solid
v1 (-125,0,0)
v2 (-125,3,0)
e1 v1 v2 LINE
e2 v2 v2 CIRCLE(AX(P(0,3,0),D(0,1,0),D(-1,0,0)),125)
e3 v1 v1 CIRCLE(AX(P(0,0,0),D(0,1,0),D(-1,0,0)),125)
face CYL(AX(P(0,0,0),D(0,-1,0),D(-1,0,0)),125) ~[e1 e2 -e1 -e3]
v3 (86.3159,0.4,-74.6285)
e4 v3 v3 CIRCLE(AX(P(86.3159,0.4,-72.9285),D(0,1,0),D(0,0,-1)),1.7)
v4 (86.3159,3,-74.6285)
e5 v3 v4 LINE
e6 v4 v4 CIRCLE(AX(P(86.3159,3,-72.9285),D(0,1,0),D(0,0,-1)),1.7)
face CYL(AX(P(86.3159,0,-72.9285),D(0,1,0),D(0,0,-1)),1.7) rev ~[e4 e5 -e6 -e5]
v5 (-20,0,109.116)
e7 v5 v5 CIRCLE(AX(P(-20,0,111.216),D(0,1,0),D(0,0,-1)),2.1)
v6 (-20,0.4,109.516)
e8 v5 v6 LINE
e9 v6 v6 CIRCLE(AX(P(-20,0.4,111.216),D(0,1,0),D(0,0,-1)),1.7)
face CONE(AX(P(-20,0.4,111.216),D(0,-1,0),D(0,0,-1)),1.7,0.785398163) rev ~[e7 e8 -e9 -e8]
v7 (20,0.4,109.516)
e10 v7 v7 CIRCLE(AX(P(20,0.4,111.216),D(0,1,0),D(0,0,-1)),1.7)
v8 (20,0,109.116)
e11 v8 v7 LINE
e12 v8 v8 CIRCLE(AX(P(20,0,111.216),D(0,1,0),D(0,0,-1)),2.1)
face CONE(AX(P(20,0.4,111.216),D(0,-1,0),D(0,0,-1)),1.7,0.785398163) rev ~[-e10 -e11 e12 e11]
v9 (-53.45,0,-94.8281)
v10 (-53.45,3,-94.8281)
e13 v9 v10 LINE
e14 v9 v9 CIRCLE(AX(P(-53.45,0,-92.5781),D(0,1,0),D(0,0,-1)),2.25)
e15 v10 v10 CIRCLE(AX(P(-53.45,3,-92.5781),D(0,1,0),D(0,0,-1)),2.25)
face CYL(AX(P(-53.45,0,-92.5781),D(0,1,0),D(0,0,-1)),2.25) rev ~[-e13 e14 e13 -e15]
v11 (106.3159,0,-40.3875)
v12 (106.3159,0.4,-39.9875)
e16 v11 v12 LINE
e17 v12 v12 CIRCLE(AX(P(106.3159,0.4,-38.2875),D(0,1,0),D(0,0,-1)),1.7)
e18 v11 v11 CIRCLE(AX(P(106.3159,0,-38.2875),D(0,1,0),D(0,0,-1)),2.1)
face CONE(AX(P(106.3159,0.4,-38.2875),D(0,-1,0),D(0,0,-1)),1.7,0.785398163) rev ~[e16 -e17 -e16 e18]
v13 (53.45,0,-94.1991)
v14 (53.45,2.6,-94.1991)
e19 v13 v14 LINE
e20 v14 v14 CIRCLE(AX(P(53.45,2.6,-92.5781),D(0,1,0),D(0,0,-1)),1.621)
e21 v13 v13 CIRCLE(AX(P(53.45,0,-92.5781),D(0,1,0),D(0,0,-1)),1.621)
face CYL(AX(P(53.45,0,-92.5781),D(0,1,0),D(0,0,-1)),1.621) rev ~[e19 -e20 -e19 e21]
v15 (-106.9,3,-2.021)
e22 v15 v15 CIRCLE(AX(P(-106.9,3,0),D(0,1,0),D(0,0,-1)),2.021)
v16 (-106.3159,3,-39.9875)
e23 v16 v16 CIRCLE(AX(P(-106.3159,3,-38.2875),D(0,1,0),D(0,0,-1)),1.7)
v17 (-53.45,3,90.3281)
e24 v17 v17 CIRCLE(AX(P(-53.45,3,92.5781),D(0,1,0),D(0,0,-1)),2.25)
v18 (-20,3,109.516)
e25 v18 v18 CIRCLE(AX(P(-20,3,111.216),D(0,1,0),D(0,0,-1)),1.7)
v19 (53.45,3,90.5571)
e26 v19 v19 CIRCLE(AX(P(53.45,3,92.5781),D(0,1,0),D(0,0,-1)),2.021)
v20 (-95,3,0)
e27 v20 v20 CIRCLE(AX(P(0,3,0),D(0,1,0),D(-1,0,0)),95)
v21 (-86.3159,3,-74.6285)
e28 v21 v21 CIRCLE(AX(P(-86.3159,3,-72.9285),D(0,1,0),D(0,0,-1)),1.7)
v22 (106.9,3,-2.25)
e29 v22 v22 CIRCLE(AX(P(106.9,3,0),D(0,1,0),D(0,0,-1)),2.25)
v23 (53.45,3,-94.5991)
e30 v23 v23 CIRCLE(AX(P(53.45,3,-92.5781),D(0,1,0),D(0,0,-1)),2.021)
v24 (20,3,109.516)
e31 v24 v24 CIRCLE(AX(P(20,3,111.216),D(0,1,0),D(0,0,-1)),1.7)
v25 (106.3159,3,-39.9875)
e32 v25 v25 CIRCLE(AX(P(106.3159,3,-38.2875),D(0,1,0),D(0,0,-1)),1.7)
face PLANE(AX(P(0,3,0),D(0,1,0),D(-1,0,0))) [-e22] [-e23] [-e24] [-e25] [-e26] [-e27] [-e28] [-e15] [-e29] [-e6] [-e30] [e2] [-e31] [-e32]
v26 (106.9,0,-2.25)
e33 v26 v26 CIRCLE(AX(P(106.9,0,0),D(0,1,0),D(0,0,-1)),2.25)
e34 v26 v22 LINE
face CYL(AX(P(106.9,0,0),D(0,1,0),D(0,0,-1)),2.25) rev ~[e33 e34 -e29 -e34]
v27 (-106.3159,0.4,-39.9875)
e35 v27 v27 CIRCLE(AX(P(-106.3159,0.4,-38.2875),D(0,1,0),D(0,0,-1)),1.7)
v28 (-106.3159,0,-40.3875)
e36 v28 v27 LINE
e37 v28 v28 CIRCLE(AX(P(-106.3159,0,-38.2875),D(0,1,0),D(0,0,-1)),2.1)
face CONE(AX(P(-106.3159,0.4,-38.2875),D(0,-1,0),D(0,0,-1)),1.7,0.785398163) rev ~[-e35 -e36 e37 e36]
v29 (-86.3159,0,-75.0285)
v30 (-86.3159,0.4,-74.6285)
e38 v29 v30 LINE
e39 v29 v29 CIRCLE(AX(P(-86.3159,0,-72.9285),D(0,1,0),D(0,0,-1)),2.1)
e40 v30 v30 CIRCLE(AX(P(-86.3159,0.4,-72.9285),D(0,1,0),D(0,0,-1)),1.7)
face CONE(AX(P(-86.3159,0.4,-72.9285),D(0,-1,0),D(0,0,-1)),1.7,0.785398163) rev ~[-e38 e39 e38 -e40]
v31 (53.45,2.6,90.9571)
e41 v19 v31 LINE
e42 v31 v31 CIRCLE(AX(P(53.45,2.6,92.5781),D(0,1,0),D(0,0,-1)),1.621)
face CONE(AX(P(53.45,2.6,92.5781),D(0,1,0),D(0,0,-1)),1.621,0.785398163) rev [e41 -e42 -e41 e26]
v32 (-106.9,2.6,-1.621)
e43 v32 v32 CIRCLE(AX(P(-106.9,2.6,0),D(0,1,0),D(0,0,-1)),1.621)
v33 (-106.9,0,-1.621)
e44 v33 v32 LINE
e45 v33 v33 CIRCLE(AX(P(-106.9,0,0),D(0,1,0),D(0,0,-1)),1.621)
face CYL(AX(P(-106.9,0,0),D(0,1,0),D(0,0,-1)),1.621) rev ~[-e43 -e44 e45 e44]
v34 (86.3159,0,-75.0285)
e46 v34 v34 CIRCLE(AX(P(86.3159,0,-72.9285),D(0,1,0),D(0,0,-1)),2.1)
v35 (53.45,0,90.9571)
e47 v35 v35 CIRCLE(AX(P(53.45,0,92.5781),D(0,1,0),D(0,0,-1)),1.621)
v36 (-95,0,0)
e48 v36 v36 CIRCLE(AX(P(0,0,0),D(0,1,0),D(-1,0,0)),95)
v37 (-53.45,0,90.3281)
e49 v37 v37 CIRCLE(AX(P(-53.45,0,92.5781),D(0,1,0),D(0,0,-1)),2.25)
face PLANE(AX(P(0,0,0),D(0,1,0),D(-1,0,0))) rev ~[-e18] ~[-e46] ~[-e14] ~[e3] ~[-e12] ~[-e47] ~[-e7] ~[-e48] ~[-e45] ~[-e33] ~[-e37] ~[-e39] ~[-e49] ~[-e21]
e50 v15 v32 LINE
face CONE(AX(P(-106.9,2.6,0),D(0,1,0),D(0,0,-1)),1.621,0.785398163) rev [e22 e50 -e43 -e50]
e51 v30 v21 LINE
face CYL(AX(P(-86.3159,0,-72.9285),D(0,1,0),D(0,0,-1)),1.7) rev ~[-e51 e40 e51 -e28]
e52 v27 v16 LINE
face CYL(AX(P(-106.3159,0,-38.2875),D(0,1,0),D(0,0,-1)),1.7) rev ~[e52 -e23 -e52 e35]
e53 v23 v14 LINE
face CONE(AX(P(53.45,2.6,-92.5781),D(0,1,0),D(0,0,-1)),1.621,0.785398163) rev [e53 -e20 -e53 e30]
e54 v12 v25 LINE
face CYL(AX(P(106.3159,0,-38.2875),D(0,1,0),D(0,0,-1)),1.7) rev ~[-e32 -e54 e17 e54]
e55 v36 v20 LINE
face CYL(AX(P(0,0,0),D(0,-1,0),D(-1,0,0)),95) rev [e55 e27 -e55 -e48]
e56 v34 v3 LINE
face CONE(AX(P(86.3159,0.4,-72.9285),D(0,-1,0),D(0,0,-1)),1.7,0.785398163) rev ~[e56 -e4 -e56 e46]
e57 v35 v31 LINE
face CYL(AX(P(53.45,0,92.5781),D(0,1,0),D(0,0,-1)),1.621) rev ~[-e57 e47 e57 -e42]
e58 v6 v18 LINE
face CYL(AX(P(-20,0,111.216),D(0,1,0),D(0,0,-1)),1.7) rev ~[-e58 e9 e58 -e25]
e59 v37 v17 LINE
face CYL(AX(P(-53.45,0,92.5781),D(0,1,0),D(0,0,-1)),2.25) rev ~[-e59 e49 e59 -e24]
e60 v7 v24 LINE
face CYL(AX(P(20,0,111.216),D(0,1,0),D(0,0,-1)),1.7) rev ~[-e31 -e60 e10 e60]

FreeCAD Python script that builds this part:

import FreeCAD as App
import Part
import Sketcher
from FreeCAD import Vector
Q = App.Units.Quantity


def edges_at(feature, points):
    """Names of the edges that pass closest to the given points."""
    edges = feature.Shape.Edges
    near = lambda p: min(range(len(edges)), key=lambda i: edges[i].distToShape(Part.Vertex(*p))[0])
    return sorted({f"Edge{near(p) + 1}" for p in points})

doc = App.newDocument("Part")
body = doc.addObject("PartDesign::Body", "Body")

sketch1 = doc.addObject("Sketcher::SketchObject", "Sketch")
body.addObject(sketch1)
sketch1.AttachmentSupport = (doc.XZ_Plane, [""])
sketch1.MapMode = "FlatFace"
sketch1.addGeometry([
    Part.Circle(Vector(0, 0, 0), Vector(0, 0, 1), 125),
    Part.Circle(Vector(0, 0, 0), Vector(0, 0, 1), 95),
], False)
sketch1.addConstraint([
    Sketcher.Constraint("Coincident", 0, 3, -1, 1),
    Sketcher.Constraint("Coincident", 1, 3, -1, 1),
    Sketcher.Constraint("Diameter", 1, Q("190 mm")),
    Sketcher.Constraint("Diameter", 0, Q("250 mm")),
])
pad1 = doc.addObject("PartDesign::Pad", "Pad")
body.addObject(pad1)
pad1.Profile = sketch1
pad1.Length = 3
pad1.Reversed = True

sketch2 = doc.addObject("Sketcher::SketchObject", "Sketch001")
body.addObject(sketch2)
sketch2.AttachmentSupport = (doc.XZ_Plane, [""])
sketch2.MapMode = "FlatFace"
sketch2.addGeometry([
    Part.Circle(Vector(106.9, 0, 0), Vector(0, 0, 1), 2.2),
    Part.Circle(Vector(-53.5, 92.6, 0), Vector(0, 0, 1), 2.2),
    Part.Circle(Vector(-53.5, -92.6, 0), Vector(0, 0, 1), 2.2),
], False)
sketch2.addConstraint([
    Sketcher.Constraint("Equal", 0, 1),
    Sketcher.Constraint("Equal", 1, 2),
    Sketcher.Constraint("Symmetric", 1, 3, 2, 3, -1),
    Sketcher.Constraint("PointOnObject", 0, 3, -1),
    Sketcher.Constraint("Diameter", 0, Q("4.5 mm")),
    Sketcher.Constraint("DistanceX", -1, 1, 0, 3, Q("106.9 mm")),
    Sketcher.Constraint("DistanceX", 1, 3, -1, 1, Q("53.45 mm")),
    Sketcher.Constraint("DistanceY", -1, 1, 1, 3, Q("92.578 mm")),
])
doc.recompute()
hole = doc.addObject("PartDesign::Hole", "Hole")
body.addObject(hole)
hole.Profile = sketch2
hole.ThreadType = "None"
hole.Diameter = 4.5
hole.DepthType = "ThroughAll"

sketch3 = doc.addObject("Sketcher::SketchObject", "Sketch002")
body.addObject(sketch3)
sketch3.AttachmentSupport = (doc.XZ_Plane, [""])
sketch3.MapMode = "FlatFace"
sketch3.addGeometry([
    Part.Circle(Vector(53.5, -92.6, 0), Vector(0, 0, 1), 1.6),
    Part.Circle(Vector(53.5, 92.6, 0), Vector(0, 0, 1), 1.6),
    Part.Circle(Vector(-106.9, 0, 0), Vector(0, 0, 1), 1.6),
], False)
sketch3.addConstraint([
    Sketcher.Constraint("Equal", 0, 1),
    Sketcher.Constraint("Equal", 1, 2),
    Sketcher.Constraint("Symmetric", 0, 3, 1, 3, -1),
    Sketcher.Constraint("PointOnObject", 2, 3, -1),
    Sketcher.Constraint("Diameter", 0, Q("3.242 mm")),
    Sketcher.Constraint("DistanceX", 2, 3, -1, 1, Q("106.9 mm")),
    Sketcher.Constraint("DistanceX", -1, 1, 0, 3, Q("53.45 mm")),
    Sketcher.Constraint("DistanceY", 0, 3, -1, 1, Q("92.578 mm")),
])
doc.recompute()
hole2 = doc.addObject("PartDesign::Hole", "Hole001")
body.addObject(hole2)
hole2.Profile = sketch3
hole2.ThreadType = "None"
hole2.Diameter = 3.242
hole2.DepthType = "ThroughAll"

sketch4 = doc.addObject("Sketcher::SketchObject", "Sketch003")
body.addObject(sketch4)
sketch4.AttachmentSupport = (doc.XZ_Plane, [""])
sketch4.MapMode = "FlatFace"
sketch4.addGeometry([
    Part.Circle(Vector(20, 111.2, 0), Vector(0, 0, 1), 1.7),
    Part.Circle(Vector(-20, 111.2, 0), Vector(0, 0, 1), 1.7),
    Part.Circle(Vector(-106.3, -38.3, 0), Vector(0, 0, 1), 1.7),
    Part.Circle(Vector(-86.3, -72.9, 0), Vector(0, 0, 1), 1.7),
    Part.Circle(Vector(86.3, -72.9, 0), Vector(0, 0, 1), 1.7),
    Part.Circle(Vector(106.3, -38.3, 0), Vector(0, 0, 1), 1.7),
], False)
sketch4.addConstraint([
    Sketcher.Constraint("Equal", 0, 1),
    Sketcher.Constraint("Equal", 1, 2),
    Sketcher.Constraint("Equal", 2, 3),
    Sketcher.Constraint("Equal", 3, 4),
    Sketcher.Constraint("Equal", 4, 5),
    Sketcher.Constraint("Symmetric", 0, 3, 1, 3, -2),
    Sketcher.Constraint("Symmetric", 3, 3, 4, 3, -2),
    Sketcher.Constraint("Symmetric", 2, 3, 5, 3, -2),
    Sketcher.Constraint("Diameter", 0, Q("3.4 mm")),
    Sketcher.Constraint("DistanceX", -1, 1, 0, 3, Q("20 mm")),
    Sketcher.Constraint("DistanceX", 2, 3, 3, 3, Q("20 mm")),
    Sketcher.Constraint("DistanceY", -1, 1, 0, 3, Q("111.216 mm")),
    Sketcher.Constraint("DistanceX", 2, 3, -1, 1, Q("106.316 mm")),
    Sketcher.Constraint("DistanceY", 3, 3, 2, 3, Q("34.641 mm")),
    Sketcher.Constraint("DistanceY", 2, 3, -1, 1, Q("38.2875 mm")),
])
doc.recompute()
hole3 = doc.addObject("PartDesign::Hole", "Hole002")
body.addObject(hole3)
hole3.Profile = sketch4
hole3.ThreadType = "None"
hole3.Diameter = 3.4
hole3.DepthType = "ThroughAll"
doc.recompute()

chamfer = doc.addObject("PartDesign::Chamfer", "Chamfer")
body.addObject(chamfer)
chamfer.Base = (hole3, edges_at(hole3, [
    (86.316, 0, -71.228),
    (106.316, 0, -36.587),
    (-86.316, 0, -71.228),
    (-106.316, 0, -36.587),
    (20, 0, 112.916),
    (-20, 0, 112.916),
    (53.45, 3, -90.957),
    (-106.9, 3, 1.621),
    (53.45, 3, 94.199),
]))
chamfer.Size = 0.4

doc.recompute()
